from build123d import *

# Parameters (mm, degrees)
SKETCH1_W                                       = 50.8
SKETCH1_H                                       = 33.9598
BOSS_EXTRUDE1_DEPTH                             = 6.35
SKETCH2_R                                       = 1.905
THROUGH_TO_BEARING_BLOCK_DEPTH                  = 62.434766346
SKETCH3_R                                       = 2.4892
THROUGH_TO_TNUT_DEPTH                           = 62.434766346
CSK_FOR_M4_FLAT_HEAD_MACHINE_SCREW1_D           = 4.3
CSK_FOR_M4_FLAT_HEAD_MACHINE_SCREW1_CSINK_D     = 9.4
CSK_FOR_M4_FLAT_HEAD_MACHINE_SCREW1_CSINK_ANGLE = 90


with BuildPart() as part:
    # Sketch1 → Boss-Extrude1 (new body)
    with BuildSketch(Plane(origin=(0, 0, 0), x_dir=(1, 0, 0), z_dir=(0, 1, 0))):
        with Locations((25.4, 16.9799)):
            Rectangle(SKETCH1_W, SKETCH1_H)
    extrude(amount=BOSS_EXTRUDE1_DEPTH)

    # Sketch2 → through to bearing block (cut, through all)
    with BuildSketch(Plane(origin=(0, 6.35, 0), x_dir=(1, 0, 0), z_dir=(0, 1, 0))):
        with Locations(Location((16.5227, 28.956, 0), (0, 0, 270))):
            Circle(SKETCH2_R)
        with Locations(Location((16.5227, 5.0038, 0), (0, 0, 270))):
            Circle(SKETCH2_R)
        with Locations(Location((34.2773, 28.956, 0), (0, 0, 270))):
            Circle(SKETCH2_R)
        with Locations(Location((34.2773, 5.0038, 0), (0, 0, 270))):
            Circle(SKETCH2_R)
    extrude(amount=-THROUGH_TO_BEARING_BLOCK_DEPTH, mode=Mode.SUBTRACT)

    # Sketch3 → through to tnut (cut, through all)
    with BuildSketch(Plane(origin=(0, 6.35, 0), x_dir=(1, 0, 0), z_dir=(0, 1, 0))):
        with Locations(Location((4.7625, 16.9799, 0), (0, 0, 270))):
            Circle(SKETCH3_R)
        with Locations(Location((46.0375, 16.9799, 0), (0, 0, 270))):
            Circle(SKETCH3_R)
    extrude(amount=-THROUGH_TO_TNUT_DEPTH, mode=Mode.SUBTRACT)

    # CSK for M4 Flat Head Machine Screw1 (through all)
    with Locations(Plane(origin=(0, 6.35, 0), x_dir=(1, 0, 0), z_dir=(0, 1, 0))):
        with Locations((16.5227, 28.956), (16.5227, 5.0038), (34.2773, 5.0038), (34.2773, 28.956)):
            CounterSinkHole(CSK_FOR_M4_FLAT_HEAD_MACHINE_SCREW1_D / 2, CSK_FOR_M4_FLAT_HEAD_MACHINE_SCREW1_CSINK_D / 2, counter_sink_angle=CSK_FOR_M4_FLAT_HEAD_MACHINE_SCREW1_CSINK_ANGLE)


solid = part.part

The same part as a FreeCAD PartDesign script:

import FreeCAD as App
import Part
import Sketcher
from FreeCAD import Vector
Q = App.Units.Quantity


def add_polygon(sketch, points):
    """Adds a closed chain of lines whose ends are joined by coincident constraints."""
    first, n = sketch.GeometryCount, len(points)
    for a, b in zip(points, points[1:] + points[:1]):
        sketch.addGeometry(Part.LineSegment(App.Vector(*a, 0), App.Vector(*b, 0)), False)
    for i in range(n):
        sketch.addConstraint(Sketcher.Constraint("Coincident", first + i, 2, first + (i + 1) % n, 1))

doc = App.newDocument("Part")
body = doc.addObject("PartDesign::Body", "Body")

sketch1 = doc.addObject("Sketcher::SketchObject", "Sketch")
body.addObject(sketch1)
sketch1.AttachmentSupport = (doc.XZ_Plane, [""])
sketch1.MapMode = "FlatFace"
add_polygon(sketch1, [(0, -34), (0, 0), (51, 0), (51, -34)])
sketch1.addConstraint([
    Sketcher.Constraint("Vertical", 0),
    Sketcher.Constraint("Horizontal", 1),
    Sketcher.Constraint("Vertical", 2),
    Sketcher.Constraint("Horizontal", 3),
    Sketcher.Constraint("Coincident", 0, 2, -1, 1),
    Sketcher.Constraint("DistanceX", 1, 1, 1, 2, Q("2 in")),
    Sketcher.Constraint("DistanceY", 0, 1, 0, 2, Q("1.337 in")),
])
pad1 = doc.addObject("PartDesign::Pad", "Pad")
body.addObject(pad1)
pad1.Profile = sketch1
pad1.Length = Q("0.25 in")
pad1.Reversed = True

sketch2 = doc.addObject("Sketcher::SketchObject", "Sketch001")
body.addObject(sketch2)
sketch2.AttachmentSupport = (doc.XZ_Plane, [""])
sketch2.MapMode = "FlatFace"
sketch2.AttachmentOffset = App.Placement(Vector(0, 0, -0.25 * 25.4), App.Rotation())
sketch2.addGeometry([
    Part.Circle(Vector(16.5, -29, 0), Vector(0, 0, 1), 1.9),
    Part.Circle(Vector(16.5, -5, 0), Vector(0, 0, 1), 1.9),
    Part.Circle(Vector(34.3, -29, 0), Vector(0, 0, 1), 1.9),
    Part.Circle(Vector(34.3, -5, 0), Vector(0, 0, 1), 1.9),
], False)
sketch2.addConstraint([
    Sketcher.Constraint("Equal", 0, 1),
    Sketcher.Constraint("Equal", 1, 2),
    Sketcher.Constraint("Equal", 2, 3),
    Sketcher.Constraint("Horizontal", 0, 3, 2, 3),
    Sketcher.Constraint("Horizontal", 1, 3, 3, 3),
    Sketcher.Constraint("Vertical", 0, 3, 1, 3),
    Sketcher.Constraint("Vertical", 2, 3, 3, 3),
    Sketcher.Constraint("Diameter", 0, Q("0.15 in")),
    Sketcher.Constraint("DistanceY", 0, 3, -1, 1, Q("1.14 in")),
    Sketcher.Constraint("DistanceY", 1, 3, -1, 1, Q("0.197 in")),
    Sketcher.Constraint("DistanceX", 0, 3, 2, 3, Q("0.699 in")),
    Sketcher.Constraint("DistanceX", -1, 1, 0, 3, Q("0.6505 in")),
])
pocket1 = doc.addObject("PartDesign::Pocket", "Pocket")
body.addObject(pocket1)
pocket1.Profile = sketch2
pocket1.Type = "ThroughAll"
pocket1.Reversed = True

sketch3 = doc.addObject("Sketcher::SketchObject", "Sketch002")
body.addObject(sketch3)
sketch3.AttachmentSupport = (doc.XZ_Plane, [""])
sketch3.MapMode = "FlatFace"
sketch3.AttachmentOffset = App.Placement(Vector(0, 0, -0.25 * 25.4), App.Rotation())
sketch3.addGeometry([
    Part.Circle(Vector(4.8, -17, 0), Vector(0, 0, 1), 2.5),
    Part.Circle(Vector(46, -17, 0), Vector(0, 0, 1), 2.5),
], False)
sketch3.addConstraint([
    Sketcher.Constraint("Equal", 0, 1),
    Sketcher.Constraint("Horizontal", 0, 3, 1, 3),
    Sketcher.Constraint("Diameter", 0, Q("0.196 in")),
    Sketcher.Constraint("DistanceX", -1, 1, 0, 3, Q("0.1875 in")),
    Sketcher.Constraint("DistanceX", -1, 1, 1, 3, Q("1.8125 in")),
    Sketcher.Constraint("DistanceY", 0, 3, -1, 1, Q("0.6685 in")),
])
pocket2 = doc.addObject("PartDesign::Pocket", "Pocket001")
body.addObject(pocket2)
pocket2.Profile = sketch3
pocket2.Type = "ThroughAll"
pocket2.Reversed = True

sketch4 = doc.addObject("Sketcher::SketchObject", "Sketch003")
body.addObject(sketch4)
sketch4.AttachmentSupport = (doc.XZ_Plane, [""])
sketch4.MapMode = "FlatFace"
sketch4.AttachmentOffset = App.Placement(Vector(0, 0, -0.25 * 25.4), App.Rotation())
sketch4.addGeometry([
    Part.Circle(Vector(16.5, -29, 0), Vector(0, 0, 1), 2.1),
    Part.Circle(Vector(16.5, -5, 0), Vector(0, 0, 1), 2.1),
    Part.Circle(Vector(34.3, -5, 0), Vector(0, 0, 1), 2.1),
    Part.Circle(Vector(34.3, -29, 0), Vector(0, 0, 1), 2.1),
], False)
sketch4.addConstraint([
    Sketcher.Constraint("Equal", 0, 1),
    Sketcher.Constraint("Equal", 1, 2),
    Sketcher.Constraint("Equal", 2, 3),
    Sketcher.Constraint("Horizontal", 1, 3, 2, 3),
    Sketcher.Constraint("Horizontal", 0, 3, 3, 3),
    Sketcher.Constraint("Vertical", 0, 3, 1, 3),
    Sketcher.Constraint("Vertical", 2, 3, 3, 3),
    Sketcher.Constraint("Diameter", 0, Q("4.3 mm")),
    Sketcher.Constraint("DistanceY", 0, 3, -1, 1, Q("1.14 in")),
    Sketcher.Constraint("DistanceY", 1, 3, -1, 1, Q("0.197 in")),
    Sketcher.Constraint("DistanceX", 1, 3, 2, 3, Q("0.699 in")),
    Sketcher.Constraint("DistanceX", -1, 1, 0, 3, Q("0.6505 in")),
])
doc.recompute()
hole = doc.addObject("PartDesign::Hole", "Hole")
body.addObject(hole)
hole.Profile = sketch4
hole.ThreadType = "None"
hole.Diameter = 4.3
hole.DepthType = "ThroughAll"
hole.HoleCutType = "Countersink"
hole.HoleCutDiameter = 9.4
hole.HoleCutCountersinkAngle = 90
hole.Reversed = True

doc.recompute()
